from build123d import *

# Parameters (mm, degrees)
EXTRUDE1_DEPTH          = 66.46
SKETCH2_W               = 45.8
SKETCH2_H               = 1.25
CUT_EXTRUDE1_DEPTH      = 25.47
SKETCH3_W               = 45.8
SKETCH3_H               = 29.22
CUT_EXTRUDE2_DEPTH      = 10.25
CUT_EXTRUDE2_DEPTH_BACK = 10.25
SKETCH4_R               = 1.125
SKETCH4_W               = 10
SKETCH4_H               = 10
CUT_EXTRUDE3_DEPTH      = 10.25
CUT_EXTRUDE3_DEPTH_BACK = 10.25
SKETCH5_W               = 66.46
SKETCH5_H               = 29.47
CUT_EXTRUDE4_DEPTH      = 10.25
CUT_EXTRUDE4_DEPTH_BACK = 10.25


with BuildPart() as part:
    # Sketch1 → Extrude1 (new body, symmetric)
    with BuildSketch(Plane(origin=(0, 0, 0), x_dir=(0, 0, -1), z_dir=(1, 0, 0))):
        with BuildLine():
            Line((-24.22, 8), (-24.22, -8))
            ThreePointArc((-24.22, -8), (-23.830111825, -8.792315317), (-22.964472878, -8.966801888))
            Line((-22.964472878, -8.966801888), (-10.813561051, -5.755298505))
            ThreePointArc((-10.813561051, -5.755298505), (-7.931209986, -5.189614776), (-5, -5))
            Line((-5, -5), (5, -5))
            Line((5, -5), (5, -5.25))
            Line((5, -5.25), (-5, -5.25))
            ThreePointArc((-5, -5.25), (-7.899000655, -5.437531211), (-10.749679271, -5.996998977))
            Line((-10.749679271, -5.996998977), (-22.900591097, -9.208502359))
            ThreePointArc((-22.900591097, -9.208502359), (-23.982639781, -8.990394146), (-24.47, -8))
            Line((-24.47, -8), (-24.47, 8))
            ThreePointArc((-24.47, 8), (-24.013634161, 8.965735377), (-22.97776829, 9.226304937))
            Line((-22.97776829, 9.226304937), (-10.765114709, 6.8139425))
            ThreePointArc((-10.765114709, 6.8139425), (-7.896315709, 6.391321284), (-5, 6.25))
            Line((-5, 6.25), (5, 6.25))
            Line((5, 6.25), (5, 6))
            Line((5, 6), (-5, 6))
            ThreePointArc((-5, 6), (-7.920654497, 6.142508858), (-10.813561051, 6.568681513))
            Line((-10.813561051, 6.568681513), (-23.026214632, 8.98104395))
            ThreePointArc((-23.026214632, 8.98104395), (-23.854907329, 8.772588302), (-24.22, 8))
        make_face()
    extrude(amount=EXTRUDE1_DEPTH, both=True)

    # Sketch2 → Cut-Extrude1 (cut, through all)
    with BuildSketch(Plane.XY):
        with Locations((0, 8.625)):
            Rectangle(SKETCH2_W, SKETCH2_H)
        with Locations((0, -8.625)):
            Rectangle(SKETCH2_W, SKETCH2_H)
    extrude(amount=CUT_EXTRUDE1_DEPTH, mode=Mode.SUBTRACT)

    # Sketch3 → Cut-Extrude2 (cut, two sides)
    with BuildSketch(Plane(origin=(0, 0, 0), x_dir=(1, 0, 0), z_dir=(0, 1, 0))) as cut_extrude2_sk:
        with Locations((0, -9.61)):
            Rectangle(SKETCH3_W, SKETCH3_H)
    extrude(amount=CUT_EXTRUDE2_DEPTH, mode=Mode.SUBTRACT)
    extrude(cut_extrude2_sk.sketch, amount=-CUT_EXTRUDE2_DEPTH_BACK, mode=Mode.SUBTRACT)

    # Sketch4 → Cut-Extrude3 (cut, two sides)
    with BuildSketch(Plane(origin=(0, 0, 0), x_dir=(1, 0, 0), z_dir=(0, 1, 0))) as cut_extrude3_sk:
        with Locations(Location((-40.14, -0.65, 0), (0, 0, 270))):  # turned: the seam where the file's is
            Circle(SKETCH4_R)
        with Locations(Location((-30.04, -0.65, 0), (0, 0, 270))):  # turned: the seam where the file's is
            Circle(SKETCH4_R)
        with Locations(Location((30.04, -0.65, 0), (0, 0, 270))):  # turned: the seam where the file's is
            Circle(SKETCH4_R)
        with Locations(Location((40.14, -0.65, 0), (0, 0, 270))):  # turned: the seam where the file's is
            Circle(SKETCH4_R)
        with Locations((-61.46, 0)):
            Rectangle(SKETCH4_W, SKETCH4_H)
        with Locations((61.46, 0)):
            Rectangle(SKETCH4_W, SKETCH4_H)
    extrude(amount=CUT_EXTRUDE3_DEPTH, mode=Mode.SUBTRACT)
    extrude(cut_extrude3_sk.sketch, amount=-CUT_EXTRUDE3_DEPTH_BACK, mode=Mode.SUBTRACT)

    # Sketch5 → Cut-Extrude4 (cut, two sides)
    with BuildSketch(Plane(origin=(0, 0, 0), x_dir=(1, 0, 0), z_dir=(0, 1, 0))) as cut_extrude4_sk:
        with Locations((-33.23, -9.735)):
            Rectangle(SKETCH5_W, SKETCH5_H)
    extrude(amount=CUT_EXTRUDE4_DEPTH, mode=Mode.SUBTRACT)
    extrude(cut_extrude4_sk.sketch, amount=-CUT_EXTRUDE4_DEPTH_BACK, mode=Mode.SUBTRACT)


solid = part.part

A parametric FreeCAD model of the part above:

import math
import FreeCAD as App
import Part
import Sketcher

V = App.Vector
Q = App.Units.Quantity

doc = App.newDocument("Part")
body = doc.addObject("PartDesign::Body", "Body")

# Sketch on YZ plane
sketch1 = body.newObject("Sketcher::SketchObject", "Sketch")
sketch1.AttachmentSupport = (doc.getObject("YZ_Plane"), [""])
sketch1.MapMode = "FlatFace"
sketch1.addGeometry(Part.LineSegment(V(-8, 24.22, 0), V(8, 24.22, 0)), False)
sketch1.addGeometry(Part.ArcOfCircle(Part.Circle(V(8, 23.22, 0), V(0, 0, 1), 1), math.radians(-11.173777), math.radians(90)), False)
sketch1.addGeometry(Part.LineSegment(V(8.981044, 23.026215, 0), V(6.568682, 10.813561, 0)), False)
sketch1.addGeometry(Part.ArcOfCircle(Part.Circle(V(36, 5, 0), V(0, 0, 1), 30), math.radians(168.826223), math.radians(180)), False)
sketch1.addGeometry(Part.LineSegment(V(6, 5, 0), V(6, -5, 0)), False)
sketch1.addGeometry(Part.LineSegment(V(6, -5, 0), V(6.25, -5, 0)), False)
sketch1.addGeometry(Part.LineSegment(V(6.25, -5, 0), V(6.25, 5, 0)), False)
sketch1.addGeometry(Part.ArcOfCircle(Part.Circle(V(36, 5, 0), V(0, 0, 1), 29.75), math.radians(168.826223), math.radians(180)), False)
sketch1.addGeometry(Part.LineSegment(V(6.813942, 10.765115, 0), V(9.226305, 22.977768, 0)), False)
sketch1.addGeometry(Part.ArcOfCircle(Part.Circle(V(8, 23.22, 0), V(0, 0, 1), 1.25), math.radians(-11.173777), math.radians(90)), False)
sketch1.addGeometry(Part.LineSegment(V(8, 24.47, 0), V(-8, 24.47, 0)), False)
sketch1.addGeometry(Part.ArcOfCircle(Part.Circle(V(-8, 23.22, 0), V(0, 0, 1), 1.25), math.radians(90), math.radians(194.804822)), False)
sketch1.addGeometry(Part.LineSegment(V(-9.208502, 22.900591, 0), V(-5.996999, 10.749679, 0)), False)
sketch1.addGeometry(Part.ArcOfCircle(Part.Circle(V(-27.751248, 5, 0), V(0, 0, 1), 22.501248), math.radians(0), math.radians(14.804822)), False)
sketch1.addGeometry(Part.LineSegment(V(-5.25, 5, 0), V(-5.25, -5, 0)), False)
sketch1.addGeometry(Part.LineSegment(V(-5.25, -5, 0), V(-5, -5, 0)), False)
sketch1.addGeometry(Part.LineSegment(V(-5, -5, 0), V(-5, 5, 0)), False)
sketch1.addGeometry(Part.ArcOfCircle(Part.Circle(V(-27.751249, 5, 0), V(0, 0, 1), 22.751249), math.radians(0), math.radians(14.804822)), False)
sketch1.addGeometry(Part.LineSegment(V(-5.755299, 10.813561, 0), V(-8.966802, 22.964473, 0)), False)
sketch1.addGeometry(Part.ArcOfCircle(Part.Circle(V(-8, 23.22, 0), V(0, 0, 1), 1), math.radians(90), math.radians(194.804822)), False)
sketch1.addConstraint(Sketcher.Constraint("Tangent", 0, 2, 1, 2))
sketch1.addConstraint(Sketcher.Constraint("Tangent", 1, 1, 2, 1))
sketch1.addConstraint(Sketcher.Constraint("Tangent", 2, 2, 3, 1))
sketch1.addConstraint(Sketcher.Constraint("Tangent", 3, 2, 4, 1))
sketch1.addConstraint(Sketcher.Constraint("Coincident", 4, 2, 5, 1))
sketch1.addConstraint(Sketcher.Constraint("Coincident", 5, 2, 6, 1))
sketch1.addConstraint(Sketcher.Constraint("Tangent", 6, 2, 7, 2))
sketch1.addConstraint(Sketcher.Constraint("Tangent", 7, 1, 8, 1))
sketch1.addConstraint(Sketcher.Constraint("Tangent", 8, 2, 9, 1))
sketch1.addConstraint(Sketcher.Constraint("Tangent", 9, 2, 10, 1))
sketch1.addConstraint(Sketcher.Constraint("Tangent", 10, 2, 11, 1))
sketch1.addConstraint(Sketcher.Constraint("Tangent", 11, 2, 12, 1))
sketch1.addConstraint(Sketcher.Constraint("Tangent", 12, 2, 13, 2))
sketch1.addConstraint(Sketcher.Constraint("Tangent", 13, 1, 14, 1))
sketch1.addConstraint(Sketcher.Constraint("Coincident", 14, 2, 15, 1))
sketch1.addConstraint(Sketcher.Constraint("Coincident", 15, 2, 16, 1))
sketch1.addConstraint(Sketcher.Constraint("Tangent", 16, 2, 17, 1))
sketch1.addConstraint(Sketcher.Constraint("Tangent", 17, 2, 18, 1))
sketch1.addConstraint(Sketcher.Constraint("Tangent", 18, 2, 19, 2))
sketch1.addConstraint(Sketcher.Constraint("Tangent", 19, 1, 0, 1))
sketch1.addConstraint(Sketcher.Constraint("Horizontal", 0))
sketch1.addConstraint(Sketcher.Constraint("Vertical", 4))
sketch1.addConstraint(Sketcher.Constraint("Horizontal", 5))
sketch1.addConstraint(Sketcher.Constraint("Vertical", 6))
sketch1.addConstraint(Sketcher.Constraint("Horizontal", 10))
sketch1.addConstraint(Sketcher.Constraint("Vertical", 14))
sketch1.addConstraint(Sketcher.Constraint("Horizontal", 15))
sketch1.addConstraint(Sketcher.Constraint("Vertical", 16))
sketch1.addConstraint(Sketcher.Constraint("Coincident", 7, 3, 3, 3))
sketch1.addConstraint(Sketcher.Constraint("Coincident", 9, 3, 1, 3))
sketch1.addConstraint(Sketcher.Constraint("Coincident", 17, 3, 13, 3))
sketch1.addConstraint(Sketcher.Constraint("Coincident", 19, 3, 11, 3))
sketch1.addConstraint(Sketcher.Constraint("Equal", 9, 11))
sketch1.addConstraint(Sketcher.Constraint("Parallel", 2, 8))
sketch1.addConstraint(Sketcher.Constraint("Parallel", 12, 18))
sketch1.addConstraint(Sketcher.Constraint("Horizontal", 7, 3, 13, 3))
sketch1.addConstraint(Sketcher.Constraint("Horizontal", 5, 2, 14, 2))
sketch1.addConstraint(Sketcher.Constraint("Horizontal", 2, 2, 17, 2))
sketch1.addConstraint(Sketcher.Constraint("Radius", 1, Q("1 mm")))
sketch1.addConstraint(Sketcher.Constraint("Radius", 3, Q("30 mm")))
sketch1.addConstraint(Sketcher.Constraint("DistanceX", 0, 1, 0, 2, Q("16 mm")))
sketch1.addConstraint(Sketcher.Constraint("DistanceY", 4, 2, 4, 1, Q("10 mm")))
sketch1.addConstraint(Sketcher.Constraint("Radius", 7, Q("29.75 mm")))
sketch1.addConstraint(Sketcher.Constraint("DistanceX", -1, 1, 1, 3, Q("8 mm")))
sketch1.addConstraint(Sketcher.Constraint("DistanceX", -1, 1, 3, 3, Q("36 mm")))
sketch1.addConstraint(Sketcher.Constraint("DistanceY", -1, 1, 3, 3, Q("5 mm")))
sketch1.addConstraint(Sketcher.Constraint("DistanceX", 15, 2, -1, 1, Q("5 mm")))
sketch1.addConstraint(Sketcher.Constraint("DistanceY", -1, 1, 1, 3, Q("23.22 mm")))
pad1 = body.newObject("PartDesign::Pad", "Pad")
pad1.Profile = sketch1
pad1.Length = 132.92
pad1.Midplane = True

# Sketch on XY plane
sketch2 = body.newObject("Sketcher::SketchObject", "Sketch001")
sketch2.AttachmentSupport = (doc.getObject("XY_Plane"), [""])
sketch2.MapMode = "FlatFace"
sketch2.addGeometry(Part.LineSegment(V(-22.9, 9.25, 0), V(-22.9, 8, 0)), False)
sketch2.addGeometry(Part.LineSegment(V(-22.9, 8, 0), V(22.9, 8, 0)), False)
sketch2.addGeometry(Part.LineSegment(V(22.9, 8, 0), V(22.9, 9.25, 0)), False)
sketch2.addGeometry(Part.LineSegment(V(22.9, 9.25, 0), V(-22.9, 9.25, 0)), False)
sketch2.addGeometry(Part.LineSegment(V(-22.9, -8, 0), V(-22.9, -9.25, 0)), False)
sketch2.addGeometry(Part.LineSegment(V(-22.9, -9.25, 0), V(22.9, -9.25, 0)), False)
sketch2.addGeometry(Part.LineSegment(V(22.9, -9.25, 0), V(22.9, -8, 0)), False)
sketch2.addGeometry(Part.LineSegment(V(22.9, -8, 0), V(-22.9, -8, 0)), False)
sketch2.addConstraint(Sketcher.Constraint("Coincident", 0, 2, 1, 1))
sketch2.addConstraint(Sketcher.Constraint("Coincident", 1, 2, 2, 1))
sketch2.addConstraint(Sketcher.Constraint("Coincident", 2, 2, 3, 1))
sketch2.addConstraint(Sketcher.Constraint("Coincident", 3, 2, 0, 1))
sketch2.addConstraint(Sketcher.Constraint("Coincident", 4, 2, 5, 1))
sketch2.addConstraint(Sketcher.Constraint("Coincident", 5, 2, 6, 1))
sketch2.addConstraint(Sketcher.Constraint("Coincident", 6, 2, 7, 1))
sketch2.addConstraint(Sketcher.Constraint("Coincident", 7, 2, 4, 1))
sketch2.addConstraint(Sketcher.Constraint("Vertical", 0))
sketch2.addConstraint(Sketcher.Constraint("Horizontal", 1))
sketch2.addConstraint(Sketcher.Constraint("Vertical", 2))
sketch2.addConstraint(Sketcher.Constraint("Horizontal", 3))
sketch2.addConstraint(Sketcher.Constraint("Vertical", 4))
sketch2.addConstraint(Sketcher.Constraint("Horizontal", 5))
sketch2.addConstraint(Sketcher.Constraint("Vertical", 6))
sketch2.addConstraint(Sketcher.Constraint("Horizontal", 7))
sketch2.addConstraint(Sketcher.Constraint("Symmetric", 2, 2, 4, 2, -1, 1))
sketch2.addConstraint(Sketcher.Constraint("Symmetric", 0, 2, 6, 2, -1, 1))
sketch2.addConstraint(Sketcher.Constraint("Vertical", 3, 2, 4, 2))
sketch2.addConstraint(Sketcher.Constraint("DistanceX", 1, 1, 1, 2, Q("45.8 mm")))
sketch2.addConstraint(Sketcher.Constraint("DistanceY", -1, 1, 0, 2, Q("8 mm")))
sketch2.addConstraint(Sketcher.Constraint("DistanceY", 0, 2, 0, 1, Q("1.25 mm")))
pocket1 = body.newObject("PartDesign::Pocket", "Pocket")
pocket1.Profile = sketch2
pocket1.Type = "ThroughAll"
pocket1.Reversed = True

# Sketch on XZ plane
sketch3 = body.newObject("Sketcher::SketchObject", "Sketch002")
sketch3.AttachmentSupport = (doc.getObject("XZ_Plane"), [""])
sketch3.MapMode = "FlatFace"
sketch3.addGeometry(Part.LineSegment(V(-22.9, -5, 0), V(-22.9, 24.22, 0)), False)
sketch3.addGeometry(Part.LineSegment(V(-22.9, 24.22, 0), V(22.9, 24.22, 0)), False)
sketch3.addGeometry(Part.LineSegment(V(22.9, 24.22, 0), V(22.9, -5, 0)), False)
sketch3.addGeometry(Part.LineSegment(V(22.9, -5, 0), V(-22.9, -5, 0)), False)
sketch3.addConstraint(Sketcher.Constraint("Coincident", 0, 2, 1, 1))
sketch3.addConstraint(Sketcher.Constraint("Coincident", 1, 2, 2, 1))
sketch3.addConstraint(Sketcher.Constraint("Coincident", 2, 2, 3, 1))
sketch3.addConstraint(Sketcher.Constraint("Coincident", 3, 2, 0, 1))
sketch3.addConstraint(Sketcher.Constraint("Vertical", 0))
sketch3.addConstraint(Sketcher.Constraint("Horizontal", 1))
sketch3.addConstraint(Sketcher.Constraint("Vertical", 2))
sketch3.addConstraint(Sketcher.Constraint("Horizontal", 3))
sketch3.addConstraint(Sketcher.Constraint("DistanceX", 1, 1, 1, 2, Q("45.8 mm")))
sketch3.addConstraint(Sketcher.Constraint("DistanceY", 2, 2, -1, 1, Q("5 mm")))
sketch3.addConstraint(Sketcher.Constraint("DistanceY", 0, 1, 0, 2, Q("29.22 mm")))
sketch3.addConstraint(Sketcher.Constraint("DistanceX", 0, 2, -1, 1, Q("22.9 mm")))
pocket2 = body.newObject("PartDesign::Pocket", "Pocket001")
pocket2.Profile = sketch3
pocket2.Type = "ThroughAll"
pocket2.Midplane = True

# Sketch on XZ plane
sketch4 = body.newObject("Sketcher::SketchObject", "Sketch003")
sketch4.AttachmentSupport = (doc.getObject("XZ_Plane"), [""])
sketch4.MapMode = "FlatFace"
sketch4.addGeometry(Part.Circle(V(-40.14, 0.65, 0), V(0, 0, 1), 1.125), False)
sketch4.addGeometry(Part.Circle(V(-30.04, 0.65, 0), V(0, 0, 1), 1.125), False)
sketch4.addGeometry(Part.Circle(V(30.04, 0.65, 0), V(0, 0, 1), 1.125), False)
sketch4.addGeometry(Part.Circle(V(40.14, 0.65, 0), V(0, 0, 1), 1.125), False)
sketch4.addGeometry(Part.LineSegment(V(-66.46, -5, 0), V(-66.46, 5, 0)), False)
sketch4.addGeometry(Part.LineSegment(V(-66.46, 5, 0), V(-56.46, 5, 0)), False)
sketch4.addGeometry(Part.LineSegment(V(-56.46, 5, 0), V(-56.46, -5, 0)), False)
sketch4.addGeometry(Part.LineSegment(V(-56.46, -5, 0), V(-66.46, -5, 0)), False)
sketch4.addGeometry(Part.LineSegment(V(56.46, -5, 0), V(56.46, 5, 0)), False)
sketch4.addGeometry(Part.LineSegment(V(56.46, 5, 0), V(66.46, 5, 0)), False)
sketch4.addGeometry(Part.LineSegment(V(66.46, 5, 0), V(66.46, -5, 0)), False)
sketch4.addGeometry(Part.LineSegment(V(66.46, -5, 0), V(56.46, -5, 0)), False)
sketch4.addConstraint(Sketcher.Constraint("Coincident", 4, 2, 5, 1))
sketch4.addConstraint(Sketcher.Constraint("Coincident", 5, 2, 6, 1))
sketch4.addConstraint(Sketcher.Constraint("Coincident", 6, 2, 7, 1))
sketch4.addConstraint(Sketcher.Constraint("Coincident", 7, 2, 4, 1))
sketch4.addConstraint(Sketcher.Constraint("Coincident", 8, 2, 9, 1))
sketch4.addConstraint(Sketcher.Constraint("Coincident", 9, 2, 10, 1))
sketch4.addConstraint(Sketcher.Constraint("Coincident", 10, 2, 11, 1))
sketch4.addConstraint(Sketcher.Constraint("Coincident", 11, 2, 8, 1))
sketch4.addConstraint(Sketcher.Constraint("Vertical", 4))
sketch4.addConstraint(Sketcher.Constraint("Horizontal", 5))
sketch4.addConstraint(Sketcher.Constraint("Vertical", 6))
sketch4.addConstraint(Sketcher.Constraint("Horizontal", 7))
sketch4.addConstraint(Sketcher.Constraint("Vertical", 8))
sketch4.addConstraint(Sketcher.Constraint("Horizontal", 9))
sketch4.addConstraint(Sketcher.Constraint("Vertical", 10))
sketch4.addConstraint(Sketcher.Constraint("Horizontal", 11))
sketch4.addConstraint(Sketcher.Constraint("Equal", 0, 1))
sketch4.addConstraint(Sketcher.Constraint("Equal", 1, 2))
sketch4.addConstraint(Sketcher.Constraint("Equal", 2, 3))
sketch4.addConstraint(Sketcher.Constraint("Symmetric", 6, 2, 8, 2, -1, 1))
sketch4.addConstraint(Sketcher.Constraint("Symmetric", 4, 2, 10, 2, -1, 1))
sketch4.addConstraint(Sketcher.Constraint("Symmetric", 1, 3, 2, 3, -2))
sketch4.addConstraint(Sketcher.Constraint("Symmetric", 0, 3, 3, 3, -2))
sketch4.addConstraint(Sketcher.Constraint("Horizontal", 0, 3, 1, 3))
sketch4.addConstraint(Sketcher.Constraint("Horizontal", 5, 2, 8, 2))
sketch4.addConstraint(Sketcher.Constraint("Equal", 11, 4))
sketch4.addConstraint(Sketcher.Constraint("Diameter", 0, Q("2.25 mm")))
sketch4.addConstraint(Sketcher.Constraint("DistanceX", 5, 1, 5, 2, Q("10 mm")))
sketch4.addConstraint(Sketcher.Constraint("DistanceX", 0, 3, 1, 3, Q("10.1 mm")))
sketch4.addConstraint(Sketcher.Constraint("DistanceX", 4, 2, 2, 3, Q("96.5 mm")))
sketch4.addConstraint(Sketcher.Constraint("DistanceX", 0, 3, -1, 1, Q("40.14 mm")))
sketch4.addConstraint(Sketcher.Constraint("DistanceY", -1, 1, 0, 3, Q("0.65 mm")))
pocket3 = body.newObject("PartDesign::Pocket", "Pocket002")
pocket3.Profile = sketch4
pocket3.Type = "ThroughAll"
pocket3.Midplane = True

# Sketch on XZ plane
sketch5 = body.newObject("Sketcher::SketchObject", "Sketch004")
sketch5.AttachmentSupport = (doc.getObject("XZ_Plane"), [""])
sketch5.MapMode = "FlatFace"
sketch5.addGeometry(Part.LineSegment(V(-66.46, -5, 0), V(-66.46, 24.47, 0)), False)
sketch5.addGeometry(Part.LineSegment(V(-66.46, 24.47, 0), V(0, 24.47, 0)), False)
sketch5.addGeometry(Part.LineSegment(V(0, 24.47, 0), V(0, -5, 0)), False)
sketch5.addGeometry(Part.LineSegment(V(0, -5, 0), V(-66.46, -5, 0)), False)
sketch5.addConstraint(Sketcher.Constraint("Coincident", 0, 2, 1, 1))
sketch5.addConstraint(Sketcher.Constraint("Coincident", 1, 2, 2, 1))
sketch5.addConstraint(Sketcher.Constraint("Coincident", 2, 2, 3, 1))
sketch5.addConstraint(Sketcher.Constraint("Coincident", 3, 2, 0, 1))
sketch5.addConstraint(Sketcher.Constraint("Vertical", 0))
sketch5.addConstraint(Sketcher.Constraint("Horizontal", 1))
sketch5.addConstraint(Sketcher.Constraint("Vertical", 2))
sketch5.addConstraint(Sketcher.Constraint("Horizontal", 3))
sketch5.addConstraint(Sketcher.Constraint("PointOnObject", 1, 2, -2))
sketch5.addConstraint(Sketcher.Constraint("DistanceY", 2, 2, -1, 1, Q("5 mm")))
sketch5.addConstraint(Sketcher.Constraint("DistanceX", 1, 1, 1, 2, Q("66.46 mm")))
sketch5.addConstraint(Sketcher.Constraint("DistanceY", 0, 1, 0, 2, Q("29.47 mm")))
pocket4 = body.newObject("PartDesign::Pocket", "Pocket003")
pocket4.Profile = sketch5
pocket4.Type = "ThroughAll"
pocket4.Midplane = True

doc.recompute()
